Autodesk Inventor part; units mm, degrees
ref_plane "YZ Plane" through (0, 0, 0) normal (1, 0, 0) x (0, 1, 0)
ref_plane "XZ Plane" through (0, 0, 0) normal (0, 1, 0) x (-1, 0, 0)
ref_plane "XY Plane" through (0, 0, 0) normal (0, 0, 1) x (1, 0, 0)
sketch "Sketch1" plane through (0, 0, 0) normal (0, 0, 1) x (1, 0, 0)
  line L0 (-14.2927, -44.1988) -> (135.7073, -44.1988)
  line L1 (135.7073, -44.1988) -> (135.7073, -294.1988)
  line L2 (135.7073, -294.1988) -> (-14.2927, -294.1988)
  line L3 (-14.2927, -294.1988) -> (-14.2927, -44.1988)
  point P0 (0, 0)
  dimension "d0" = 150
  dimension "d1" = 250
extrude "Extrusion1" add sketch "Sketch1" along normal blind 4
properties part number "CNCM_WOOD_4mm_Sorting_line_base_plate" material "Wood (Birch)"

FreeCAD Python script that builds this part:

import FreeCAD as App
import Part
import Sketcher
from FreeCAD import Vector
Q = App.Units.Quantity


def add_polygon(sketch, points):
    """Adds a closed chain of lines whose ends are joined by coincident constraints."""
    first, n = sketch.GeometryCount, len(points)
    for a, b in zip(points, points[1:] + points[:1]):
        sketch.addGeometry(Part.LineSegment(App.Vector(*a, 0), App.Vector(*b, 0)), False)
    for i in range(n):
        sketch.addConstraint(Sketcher.Constraint("Coincident", first + i, 2, first + (i + 1) % n, 1))

doc = App.newDocument("Part")
body = doc.addObject("PartDesign::Body", "Body")

# Sketch on XY plane
sketch1 = body.newObject("Sketcher::SketchObject", "Sketch")
sketch1.AttachmentSupport = (doc.getObject("XY_Plane"), [""])
sketch1.MapMode = "FlatFace"
add_polygon(sketch1, [(136, -44), (-14, -44), (-14, -294), (136, -294)])  # lines 0-3
sketch1.addConstraint(Sketcher.Constraint("Horizontal", 0))
sketch1.addConstraint(Sketcher.Constraint("Vertical", 1))
sketch1.addConstraint(Sketcher.Constraint("Horizontal", 2))
sketch1.addConstraint(Sketcher.Constraint("Vertical", 3))
sketch1.addConstraint(Sketcher.Constraint("DistanceX", 0, 2, 0, 1, Q("150 mm")))
sketch1.addConstraint(Sketcher.Constraint("DistanceY", 1, 2, 1, 1, Q("250 mm")))
sketch1.addConstraint(Sketcher.Constraint("DistanceX", 0, 2, -1, 1, Q("14.2927 mm")))
sketch1.addConstraint(Sketcher.Constraint("DistanceY", 0, 2, -1, 1, Q("44.1988 mm")))
pad1 = body.newObject("PartDesign::Pad", "Pad")
pad1.Profile = sketch1
pad1.Length = 4

doc.recompute()
